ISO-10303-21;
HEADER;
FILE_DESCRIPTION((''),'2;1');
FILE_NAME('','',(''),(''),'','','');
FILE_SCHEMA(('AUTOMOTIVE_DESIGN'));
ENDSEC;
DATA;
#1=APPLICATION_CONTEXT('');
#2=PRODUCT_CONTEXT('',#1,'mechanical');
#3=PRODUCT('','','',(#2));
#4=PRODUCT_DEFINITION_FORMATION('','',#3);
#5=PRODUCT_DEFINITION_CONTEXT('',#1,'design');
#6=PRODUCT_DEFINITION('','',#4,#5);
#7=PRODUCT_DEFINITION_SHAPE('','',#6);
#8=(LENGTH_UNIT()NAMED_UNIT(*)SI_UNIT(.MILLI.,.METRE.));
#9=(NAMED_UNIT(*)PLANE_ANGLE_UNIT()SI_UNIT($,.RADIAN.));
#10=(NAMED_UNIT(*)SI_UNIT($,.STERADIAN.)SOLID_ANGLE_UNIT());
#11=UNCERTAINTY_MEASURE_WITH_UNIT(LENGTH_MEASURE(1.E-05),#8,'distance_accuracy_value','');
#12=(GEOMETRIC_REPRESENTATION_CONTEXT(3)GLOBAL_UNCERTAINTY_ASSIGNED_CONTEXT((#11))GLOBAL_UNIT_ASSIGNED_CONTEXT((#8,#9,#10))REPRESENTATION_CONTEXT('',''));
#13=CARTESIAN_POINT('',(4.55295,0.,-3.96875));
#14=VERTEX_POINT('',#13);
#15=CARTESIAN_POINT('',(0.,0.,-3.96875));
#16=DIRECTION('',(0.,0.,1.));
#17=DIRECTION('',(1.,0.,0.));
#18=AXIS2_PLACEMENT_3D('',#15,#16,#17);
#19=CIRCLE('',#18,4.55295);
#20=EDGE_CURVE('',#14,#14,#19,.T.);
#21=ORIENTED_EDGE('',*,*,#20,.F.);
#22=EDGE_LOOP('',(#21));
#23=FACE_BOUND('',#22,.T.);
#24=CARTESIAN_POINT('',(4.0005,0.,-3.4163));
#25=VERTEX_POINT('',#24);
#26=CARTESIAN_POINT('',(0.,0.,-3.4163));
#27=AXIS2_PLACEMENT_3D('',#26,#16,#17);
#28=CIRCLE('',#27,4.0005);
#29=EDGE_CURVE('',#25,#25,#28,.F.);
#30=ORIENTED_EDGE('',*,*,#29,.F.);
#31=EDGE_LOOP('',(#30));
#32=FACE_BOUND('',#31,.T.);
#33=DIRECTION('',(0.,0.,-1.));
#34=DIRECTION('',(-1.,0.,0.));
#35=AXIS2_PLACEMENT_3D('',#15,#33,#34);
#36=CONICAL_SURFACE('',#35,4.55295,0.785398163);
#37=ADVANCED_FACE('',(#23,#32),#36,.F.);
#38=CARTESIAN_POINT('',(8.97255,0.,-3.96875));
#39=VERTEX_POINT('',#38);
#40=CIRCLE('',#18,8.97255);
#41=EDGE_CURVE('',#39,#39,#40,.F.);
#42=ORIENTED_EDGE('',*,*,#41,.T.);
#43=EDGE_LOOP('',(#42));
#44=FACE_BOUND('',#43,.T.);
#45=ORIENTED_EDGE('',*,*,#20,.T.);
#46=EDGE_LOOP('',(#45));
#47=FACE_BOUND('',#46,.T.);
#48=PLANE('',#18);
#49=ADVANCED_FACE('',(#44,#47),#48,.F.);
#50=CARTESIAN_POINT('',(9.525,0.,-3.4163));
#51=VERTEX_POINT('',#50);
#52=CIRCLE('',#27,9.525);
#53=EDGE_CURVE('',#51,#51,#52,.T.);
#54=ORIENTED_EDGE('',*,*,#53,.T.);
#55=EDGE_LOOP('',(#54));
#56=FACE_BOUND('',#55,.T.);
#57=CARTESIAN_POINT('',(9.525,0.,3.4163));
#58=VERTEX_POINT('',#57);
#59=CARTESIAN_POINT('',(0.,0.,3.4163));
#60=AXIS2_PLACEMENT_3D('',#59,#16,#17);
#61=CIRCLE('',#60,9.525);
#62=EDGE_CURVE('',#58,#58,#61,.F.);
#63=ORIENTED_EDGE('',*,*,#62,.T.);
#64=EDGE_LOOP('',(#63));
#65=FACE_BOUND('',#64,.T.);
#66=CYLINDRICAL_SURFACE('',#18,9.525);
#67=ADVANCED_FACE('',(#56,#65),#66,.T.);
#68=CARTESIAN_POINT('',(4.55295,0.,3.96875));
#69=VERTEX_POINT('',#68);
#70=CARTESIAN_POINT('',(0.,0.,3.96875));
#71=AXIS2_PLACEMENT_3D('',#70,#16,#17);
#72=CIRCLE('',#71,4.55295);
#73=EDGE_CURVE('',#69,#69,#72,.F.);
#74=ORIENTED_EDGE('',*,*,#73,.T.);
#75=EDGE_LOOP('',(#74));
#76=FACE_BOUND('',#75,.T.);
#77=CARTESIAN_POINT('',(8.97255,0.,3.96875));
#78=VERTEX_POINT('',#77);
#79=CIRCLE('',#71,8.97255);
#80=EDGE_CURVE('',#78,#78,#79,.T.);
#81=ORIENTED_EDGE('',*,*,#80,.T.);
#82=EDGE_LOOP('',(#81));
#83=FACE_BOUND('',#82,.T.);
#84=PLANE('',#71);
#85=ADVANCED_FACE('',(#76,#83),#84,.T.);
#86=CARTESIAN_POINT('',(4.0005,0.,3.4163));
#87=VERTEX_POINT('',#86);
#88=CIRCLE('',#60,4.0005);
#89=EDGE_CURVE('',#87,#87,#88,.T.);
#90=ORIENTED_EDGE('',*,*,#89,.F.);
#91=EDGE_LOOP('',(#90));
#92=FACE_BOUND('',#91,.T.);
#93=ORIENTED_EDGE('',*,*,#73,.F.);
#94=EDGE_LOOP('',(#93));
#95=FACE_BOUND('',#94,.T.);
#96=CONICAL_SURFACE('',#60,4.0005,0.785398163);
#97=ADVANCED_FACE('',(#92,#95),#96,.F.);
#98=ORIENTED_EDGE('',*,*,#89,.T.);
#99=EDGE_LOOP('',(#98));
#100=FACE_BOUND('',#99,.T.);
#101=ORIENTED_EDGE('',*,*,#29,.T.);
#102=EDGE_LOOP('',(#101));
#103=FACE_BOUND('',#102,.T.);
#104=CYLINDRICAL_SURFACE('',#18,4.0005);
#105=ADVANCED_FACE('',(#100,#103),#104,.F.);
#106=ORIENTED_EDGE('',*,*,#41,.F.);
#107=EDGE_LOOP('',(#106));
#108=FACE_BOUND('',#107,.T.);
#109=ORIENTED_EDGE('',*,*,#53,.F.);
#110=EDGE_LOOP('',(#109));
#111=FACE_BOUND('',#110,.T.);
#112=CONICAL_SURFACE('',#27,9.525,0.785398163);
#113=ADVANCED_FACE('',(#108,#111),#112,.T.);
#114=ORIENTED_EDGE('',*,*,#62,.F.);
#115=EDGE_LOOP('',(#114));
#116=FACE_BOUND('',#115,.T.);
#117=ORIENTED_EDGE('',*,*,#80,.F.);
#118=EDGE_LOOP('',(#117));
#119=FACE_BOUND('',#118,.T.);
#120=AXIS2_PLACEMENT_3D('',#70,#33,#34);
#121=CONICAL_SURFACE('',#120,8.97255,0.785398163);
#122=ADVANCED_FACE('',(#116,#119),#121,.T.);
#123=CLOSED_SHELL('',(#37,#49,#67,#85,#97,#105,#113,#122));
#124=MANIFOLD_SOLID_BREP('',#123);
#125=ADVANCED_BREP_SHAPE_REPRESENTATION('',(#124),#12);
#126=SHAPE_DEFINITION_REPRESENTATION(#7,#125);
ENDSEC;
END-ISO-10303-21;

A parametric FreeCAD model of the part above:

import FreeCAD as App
import Part
import Sketcher

V = App.Vector
Q = App.Units.Quantity


def edges_at(feature, points):
    """Names of the edges that pass closest to the given points."""
    edges = feature.Shape.Edges
    near = lambda p: min(range(len(edges)), key=lambda i: edges[i].distToShape(Part.Vertex(*p))[0])
    return sorted({f"Edge{near(p) + 1}" for p in points})

doc = App.newDocument("Part")
body = doc.addObject("PartDesign::Body", "Body")

# Sketch on XY plane
sketch1 = body.newObject("Sketcher::SketchObject", "Sketch")
sketch1.AttachmentSupport = (doc.getObject("XY_Plane"), [""])
sketch1.MapMode = "FlatFace"
sketch1.addGeometry([
    Part.Circle(V(0, 0, 0), V(0, 0, 1), 9.5),
    Part.Circle(V(0, 0, 0), V(0, 0, 1), 4),
], False)
sketch1.addConstraint([
    Sketcher.Constraint("Coincident", 0, 3, -1, 1),
    Sketcher.Constraint("Coincident", 1, 3, -1, 1),
    Sketcher.Constraint("Diameter", 0, Q("0.75 in")),
    Sketcher.Constraint("Diameter", 1, Q("0.315 in")),
])
pad1 = body.newObject("PartDesign::Pad", "Pad")
pad1.Profile = sketch1
pad1.Type = "TwoLengths"
pad1.Length = Q("0.15625 in")
pad1.Length2 = Q("0.15625 in")
doc.recompute()

chamfer = body.newObject("PartDesign::Chamfer", "Chamfer")
chamfer.Base = (pad1, edges_at(pad1, [
    (-9.525, 0, -3.969),
    (-4, 0, -3.969),
    (-9.525, 0, 3.969),
    (-4, 0, 3.969),
]))
chamfer.Size = 0.55245

doc.recompute()
